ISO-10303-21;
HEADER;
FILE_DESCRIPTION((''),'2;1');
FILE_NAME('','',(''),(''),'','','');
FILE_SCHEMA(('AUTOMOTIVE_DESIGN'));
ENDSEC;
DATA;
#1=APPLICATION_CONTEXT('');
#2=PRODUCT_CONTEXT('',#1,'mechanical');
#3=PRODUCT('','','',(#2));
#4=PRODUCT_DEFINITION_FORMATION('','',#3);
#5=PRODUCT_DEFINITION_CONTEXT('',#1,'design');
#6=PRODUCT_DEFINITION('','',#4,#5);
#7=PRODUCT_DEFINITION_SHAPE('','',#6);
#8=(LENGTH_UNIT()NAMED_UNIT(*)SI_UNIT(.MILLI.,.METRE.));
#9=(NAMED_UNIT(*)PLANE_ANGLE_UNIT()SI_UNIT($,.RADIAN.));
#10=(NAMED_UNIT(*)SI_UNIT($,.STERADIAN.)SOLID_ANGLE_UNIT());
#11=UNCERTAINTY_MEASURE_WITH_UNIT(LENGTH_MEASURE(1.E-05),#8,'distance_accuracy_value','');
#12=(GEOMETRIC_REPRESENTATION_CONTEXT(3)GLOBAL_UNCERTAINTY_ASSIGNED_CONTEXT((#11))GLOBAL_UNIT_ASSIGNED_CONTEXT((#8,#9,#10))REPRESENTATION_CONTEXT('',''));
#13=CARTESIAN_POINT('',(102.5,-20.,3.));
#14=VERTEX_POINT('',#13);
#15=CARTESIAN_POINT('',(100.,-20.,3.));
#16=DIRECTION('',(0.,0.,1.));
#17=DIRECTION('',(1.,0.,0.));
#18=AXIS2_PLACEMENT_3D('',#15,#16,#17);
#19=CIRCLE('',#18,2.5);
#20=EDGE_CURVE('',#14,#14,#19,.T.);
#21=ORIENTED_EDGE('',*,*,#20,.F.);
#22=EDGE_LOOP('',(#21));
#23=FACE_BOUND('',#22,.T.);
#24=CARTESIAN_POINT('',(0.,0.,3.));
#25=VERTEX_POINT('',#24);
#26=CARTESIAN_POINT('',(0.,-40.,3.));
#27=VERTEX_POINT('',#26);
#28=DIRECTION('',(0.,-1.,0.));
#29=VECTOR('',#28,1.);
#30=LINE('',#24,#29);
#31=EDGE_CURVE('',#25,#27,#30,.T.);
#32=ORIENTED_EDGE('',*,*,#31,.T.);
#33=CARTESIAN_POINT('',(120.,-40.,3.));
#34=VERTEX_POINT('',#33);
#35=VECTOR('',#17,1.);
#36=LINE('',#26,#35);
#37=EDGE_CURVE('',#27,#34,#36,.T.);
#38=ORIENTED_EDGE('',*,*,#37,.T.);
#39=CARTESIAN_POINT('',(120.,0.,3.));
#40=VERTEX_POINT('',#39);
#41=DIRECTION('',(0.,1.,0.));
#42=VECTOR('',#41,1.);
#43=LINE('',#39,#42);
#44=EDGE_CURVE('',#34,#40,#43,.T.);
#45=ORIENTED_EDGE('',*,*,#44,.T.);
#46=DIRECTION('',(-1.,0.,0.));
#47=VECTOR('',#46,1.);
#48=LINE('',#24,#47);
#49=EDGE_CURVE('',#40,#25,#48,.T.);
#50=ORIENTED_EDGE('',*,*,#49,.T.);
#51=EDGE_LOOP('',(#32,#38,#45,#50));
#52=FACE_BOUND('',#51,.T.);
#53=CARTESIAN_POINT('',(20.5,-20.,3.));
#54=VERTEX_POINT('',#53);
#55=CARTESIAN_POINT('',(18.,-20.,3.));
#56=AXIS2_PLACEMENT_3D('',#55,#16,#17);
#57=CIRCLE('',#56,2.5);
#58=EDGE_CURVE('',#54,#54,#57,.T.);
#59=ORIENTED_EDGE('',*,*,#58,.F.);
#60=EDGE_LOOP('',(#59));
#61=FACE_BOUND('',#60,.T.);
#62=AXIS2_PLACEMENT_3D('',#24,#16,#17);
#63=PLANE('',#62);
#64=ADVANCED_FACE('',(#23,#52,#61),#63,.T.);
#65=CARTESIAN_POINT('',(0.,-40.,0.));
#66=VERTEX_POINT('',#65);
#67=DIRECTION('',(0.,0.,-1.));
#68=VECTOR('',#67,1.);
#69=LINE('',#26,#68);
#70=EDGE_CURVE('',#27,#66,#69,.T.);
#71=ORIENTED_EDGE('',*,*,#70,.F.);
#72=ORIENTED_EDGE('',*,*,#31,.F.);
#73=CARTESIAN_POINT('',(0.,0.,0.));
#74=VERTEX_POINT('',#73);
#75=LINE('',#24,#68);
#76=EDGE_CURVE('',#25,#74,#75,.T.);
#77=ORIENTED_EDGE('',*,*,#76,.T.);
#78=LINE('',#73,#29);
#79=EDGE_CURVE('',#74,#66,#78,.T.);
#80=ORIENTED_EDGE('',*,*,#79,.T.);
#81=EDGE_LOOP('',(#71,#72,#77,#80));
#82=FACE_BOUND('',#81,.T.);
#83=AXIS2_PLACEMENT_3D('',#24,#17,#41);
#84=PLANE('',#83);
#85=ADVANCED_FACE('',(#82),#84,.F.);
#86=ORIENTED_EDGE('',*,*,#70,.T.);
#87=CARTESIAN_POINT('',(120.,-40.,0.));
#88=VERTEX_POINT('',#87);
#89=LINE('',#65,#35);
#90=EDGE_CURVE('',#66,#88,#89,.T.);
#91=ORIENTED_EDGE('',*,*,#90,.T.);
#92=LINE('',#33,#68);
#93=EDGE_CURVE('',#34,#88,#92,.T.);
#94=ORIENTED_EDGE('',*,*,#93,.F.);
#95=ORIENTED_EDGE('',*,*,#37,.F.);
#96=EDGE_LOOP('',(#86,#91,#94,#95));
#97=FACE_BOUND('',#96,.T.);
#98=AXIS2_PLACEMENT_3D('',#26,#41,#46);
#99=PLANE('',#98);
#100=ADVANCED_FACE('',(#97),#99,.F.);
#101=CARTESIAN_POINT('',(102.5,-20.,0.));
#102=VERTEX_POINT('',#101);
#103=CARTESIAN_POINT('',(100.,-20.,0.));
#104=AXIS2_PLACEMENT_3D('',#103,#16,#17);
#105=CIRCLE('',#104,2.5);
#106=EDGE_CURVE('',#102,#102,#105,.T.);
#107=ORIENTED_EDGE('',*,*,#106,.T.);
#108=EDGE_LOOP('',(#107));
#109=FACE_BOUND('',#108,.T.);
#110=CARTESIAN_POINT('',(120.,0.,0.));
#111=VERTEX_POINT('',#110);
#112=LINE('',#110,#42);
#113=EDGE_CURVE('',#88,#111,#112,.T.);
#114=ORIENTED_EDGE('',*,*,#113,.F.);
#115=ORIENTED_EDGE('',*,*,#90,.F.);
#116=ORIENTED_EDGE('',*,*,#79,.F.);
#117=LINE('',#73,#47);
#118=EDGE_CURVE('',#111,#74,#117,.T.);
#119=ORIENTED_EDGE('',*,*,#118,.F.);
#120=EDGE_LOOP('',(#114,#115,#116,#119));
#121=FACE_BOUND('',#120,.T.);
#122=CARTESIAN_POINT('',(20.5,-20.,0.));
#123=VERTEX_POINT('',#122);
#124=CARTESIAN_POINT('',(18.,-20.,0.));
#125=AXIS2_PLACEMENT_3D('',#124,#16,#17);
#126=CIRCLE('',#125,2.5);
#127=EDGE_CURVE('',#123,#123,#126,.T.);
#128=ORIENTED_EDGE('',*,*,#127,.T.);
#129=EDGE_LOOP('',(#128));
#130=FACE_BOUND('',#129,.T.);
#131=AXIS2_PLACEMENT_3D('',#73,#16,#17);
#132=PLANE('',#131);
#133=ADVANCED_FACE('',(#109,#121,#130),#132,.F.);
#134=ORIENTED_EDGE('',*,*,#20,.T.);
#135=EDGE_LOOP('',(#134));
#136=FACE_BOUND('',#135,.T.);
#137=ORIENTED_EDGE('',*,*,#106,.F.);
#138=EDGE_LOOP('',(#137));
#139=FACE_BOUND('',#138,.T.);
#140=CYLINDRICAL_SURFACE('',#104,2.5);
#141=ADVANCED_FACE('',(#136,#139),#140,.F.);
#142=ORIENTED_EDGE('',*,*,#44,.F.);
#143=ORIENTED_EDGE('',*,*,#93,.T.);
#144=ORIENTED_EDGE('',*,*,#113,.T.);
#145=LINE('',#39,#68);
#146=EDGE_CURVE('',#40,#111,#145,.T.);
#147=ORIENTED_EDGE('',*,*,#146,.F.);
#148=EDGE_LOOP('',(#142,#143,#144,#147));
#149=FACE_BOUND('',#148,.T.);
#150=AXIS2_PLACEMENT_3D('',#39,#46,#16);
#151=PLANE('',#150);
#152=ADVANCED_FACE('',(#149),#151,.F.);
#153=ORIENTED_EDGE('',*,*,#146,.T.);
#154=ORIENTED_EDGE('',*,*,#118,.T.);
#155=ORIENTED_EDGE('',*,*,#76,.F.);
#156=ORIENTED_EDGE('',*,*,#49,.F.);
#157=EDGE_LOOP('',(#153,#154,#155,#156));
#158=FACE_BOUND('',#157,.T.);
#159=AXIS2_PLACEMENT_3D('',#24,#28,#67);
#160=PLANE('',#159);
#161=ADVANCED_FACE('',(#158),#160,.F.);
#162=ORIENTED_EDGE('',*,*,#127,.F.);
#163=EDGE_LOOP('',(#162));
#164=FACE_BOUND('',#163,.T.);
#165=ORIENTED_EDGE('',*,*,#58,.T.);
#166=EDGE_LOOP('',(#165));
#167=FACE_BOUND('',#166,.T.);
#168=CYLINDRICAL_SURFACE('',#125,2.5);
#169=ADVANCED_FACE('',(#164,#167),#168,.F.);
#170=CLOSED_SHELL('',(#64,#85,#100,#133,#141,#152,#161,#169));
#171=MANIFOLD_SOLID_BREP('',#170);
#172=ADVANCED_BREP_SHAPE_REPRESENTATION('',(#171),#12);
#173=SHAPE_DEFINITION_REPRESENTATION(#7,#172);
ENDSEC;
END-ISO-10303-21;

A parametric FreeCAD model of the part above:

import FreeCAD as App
import Part
import Sketcher

V = App.Vector


def add_polygon(sketch, points):
    """Adds a closed chain of lines whose ends are joined by coincident constraints."""
    first, n = sketch.GeometryCount, len(points)
    for a, b in zip(points, points[1:] + points[:1]):
        sketch.addGeometry(Part.LineSegment(App.Vector(*a, 0), App.Vector(*b, 0)), False)
    for i in range(n):
        sketch.addConstraint(Sketcher.Constraint("Coincident", first + i, 2, first + (i + 1) % n, 1))

doc = App.newDocument("Part")
params = doc.addObject("Spreadsheet::Sheet", "Params")
for row, (alias, value) in enumerate([
    ("sketch1_width", "120 mm"),
    ("sketch1_height", "40 mm"),
    ("pad1_length", "3 mm"),
    ("sketch2_diameter", "5 mm"),
    ("pocket1_length", "3 mm"),
    ("sketch3_diameter", "5 mm"),
    ("pocket2_length", "3 mm"),
], start=1):
    params.set(f"A{row}", alias)
    params.set(f"B{row}", "=" + value)
    params.setAlias(f"B{row}", alias)

body = doc.addObject("PartDesign::Body", "Body")

# Sketch on XY plane
sketch1 = doc.addObject("Sketcher::SketchObject", "Sketch")
body.addObject(sketch1)
sketch1.AttachmentSupport = (doc.XY_Plane, [""])
sketch1.MapMode = "FlatFace"
add_polygon(sketch1, [(0, 0), (0, -40), (120, -40), (120, 0)])  # lines 0-3
sketch1.addConstraint([
    Sketcher.Constraint("Vertical", 0),
    Sketcher.Constraint("Horizontal", 1),
    Sketcher.Constraint("Vertical", 2),
    Sketcher.Constraint("Horizontal", 3),
    Sketcher.Constraint("Coincident", 3, 2, -1, 1),
    Sketcher.Constraint("DistanceX", 1, 1, 1, 2, 120.0),
    Sketcher.Constraint("DistanceY", 0, 2, 0, 1, 40.0),
])
sketch1.setExpression("Constraints[9]", "Params.sketch1_width")
sketch1.setExpression("Constraints[10]", "Params.sketch1_height")
pad1 = doc.addObject("PartDesign::Pad", "Pad")
body.addObject(pad1)
pad1.Profile = sketch1
pad1.setExpression("Length", "Params.pad1_length")

# Sketch on XY plane
sketch2 = doc.addObject("Sketcher::SketchObject", "Sketch001")
body.addObject(sketch2)
sketch2.AttachmentSupport = (doc.XY_Plane, [""])
sketch2.MapMode = "FlatFace"
sketch2.AttachmentOffset = App.Placement(V(0, 0, 3), App.Rotation())
sketch2.addGeometry(Part.Circle(V(18, -20, 0), V(0, 0, 1), 2.5), False)
sketch2.addConstraint([
    Sketcher.Constraint("Diameter", 0, 5.0),
    Sketcher.Constraint("DistanceX", -1, 1, 0, 3, 18.0),
    Sketcher.Constraint("DistanceY", 0, 3, -1, 1, 20.0),
])
sketch2.setExpression("Constraints[0]", "Params.sketch2_diameter")
pocket1 = doc.addObject("PartDesign::Pocket", "Pocket")
body.addObject(pocket1)
pocket1.Profile = sketch2
pocket1.setExpression("Length", "Params.pocket1_length")

# Sketch on XY plane
sketch3 = doc.addObject("Sketcher::SketchObject", "Sketch002")
body.addObject(sketch3)
sketch3.AttachmentSupport = (doc.XY_Plane, [""])
sketch3.MapMode = "FlatFace"
sketch3.AttachmentOffset = App.Placement(V(0, 0, 3), App.Rotation())
sketch3.addGeometry(Part.Circle(V(100, -20, 0), V(0, 0, 1), 2.5), False)
sketch3.addConstraint([
    Sketcher.Constraint("Diameter", 0, 5.0),
    Sketcher.Constraint("DistanceX", -1, 1, 0, 3, 100.0),
    Sketcher.Constraint("DistanceY", 0, 3, -1, 1, 20.0),
])
sketch3.setExpression("Constraints[0]", "Params.sketch3_diameter")
pocket2 = doc.addObject("PartDesign::Pocket", "Pocket001")
body.addObject(pocket2)
pocket2.Profile = sketch3
pocket2.setExpression("Length", "Params.pocket2_length")

doc.recompute()
